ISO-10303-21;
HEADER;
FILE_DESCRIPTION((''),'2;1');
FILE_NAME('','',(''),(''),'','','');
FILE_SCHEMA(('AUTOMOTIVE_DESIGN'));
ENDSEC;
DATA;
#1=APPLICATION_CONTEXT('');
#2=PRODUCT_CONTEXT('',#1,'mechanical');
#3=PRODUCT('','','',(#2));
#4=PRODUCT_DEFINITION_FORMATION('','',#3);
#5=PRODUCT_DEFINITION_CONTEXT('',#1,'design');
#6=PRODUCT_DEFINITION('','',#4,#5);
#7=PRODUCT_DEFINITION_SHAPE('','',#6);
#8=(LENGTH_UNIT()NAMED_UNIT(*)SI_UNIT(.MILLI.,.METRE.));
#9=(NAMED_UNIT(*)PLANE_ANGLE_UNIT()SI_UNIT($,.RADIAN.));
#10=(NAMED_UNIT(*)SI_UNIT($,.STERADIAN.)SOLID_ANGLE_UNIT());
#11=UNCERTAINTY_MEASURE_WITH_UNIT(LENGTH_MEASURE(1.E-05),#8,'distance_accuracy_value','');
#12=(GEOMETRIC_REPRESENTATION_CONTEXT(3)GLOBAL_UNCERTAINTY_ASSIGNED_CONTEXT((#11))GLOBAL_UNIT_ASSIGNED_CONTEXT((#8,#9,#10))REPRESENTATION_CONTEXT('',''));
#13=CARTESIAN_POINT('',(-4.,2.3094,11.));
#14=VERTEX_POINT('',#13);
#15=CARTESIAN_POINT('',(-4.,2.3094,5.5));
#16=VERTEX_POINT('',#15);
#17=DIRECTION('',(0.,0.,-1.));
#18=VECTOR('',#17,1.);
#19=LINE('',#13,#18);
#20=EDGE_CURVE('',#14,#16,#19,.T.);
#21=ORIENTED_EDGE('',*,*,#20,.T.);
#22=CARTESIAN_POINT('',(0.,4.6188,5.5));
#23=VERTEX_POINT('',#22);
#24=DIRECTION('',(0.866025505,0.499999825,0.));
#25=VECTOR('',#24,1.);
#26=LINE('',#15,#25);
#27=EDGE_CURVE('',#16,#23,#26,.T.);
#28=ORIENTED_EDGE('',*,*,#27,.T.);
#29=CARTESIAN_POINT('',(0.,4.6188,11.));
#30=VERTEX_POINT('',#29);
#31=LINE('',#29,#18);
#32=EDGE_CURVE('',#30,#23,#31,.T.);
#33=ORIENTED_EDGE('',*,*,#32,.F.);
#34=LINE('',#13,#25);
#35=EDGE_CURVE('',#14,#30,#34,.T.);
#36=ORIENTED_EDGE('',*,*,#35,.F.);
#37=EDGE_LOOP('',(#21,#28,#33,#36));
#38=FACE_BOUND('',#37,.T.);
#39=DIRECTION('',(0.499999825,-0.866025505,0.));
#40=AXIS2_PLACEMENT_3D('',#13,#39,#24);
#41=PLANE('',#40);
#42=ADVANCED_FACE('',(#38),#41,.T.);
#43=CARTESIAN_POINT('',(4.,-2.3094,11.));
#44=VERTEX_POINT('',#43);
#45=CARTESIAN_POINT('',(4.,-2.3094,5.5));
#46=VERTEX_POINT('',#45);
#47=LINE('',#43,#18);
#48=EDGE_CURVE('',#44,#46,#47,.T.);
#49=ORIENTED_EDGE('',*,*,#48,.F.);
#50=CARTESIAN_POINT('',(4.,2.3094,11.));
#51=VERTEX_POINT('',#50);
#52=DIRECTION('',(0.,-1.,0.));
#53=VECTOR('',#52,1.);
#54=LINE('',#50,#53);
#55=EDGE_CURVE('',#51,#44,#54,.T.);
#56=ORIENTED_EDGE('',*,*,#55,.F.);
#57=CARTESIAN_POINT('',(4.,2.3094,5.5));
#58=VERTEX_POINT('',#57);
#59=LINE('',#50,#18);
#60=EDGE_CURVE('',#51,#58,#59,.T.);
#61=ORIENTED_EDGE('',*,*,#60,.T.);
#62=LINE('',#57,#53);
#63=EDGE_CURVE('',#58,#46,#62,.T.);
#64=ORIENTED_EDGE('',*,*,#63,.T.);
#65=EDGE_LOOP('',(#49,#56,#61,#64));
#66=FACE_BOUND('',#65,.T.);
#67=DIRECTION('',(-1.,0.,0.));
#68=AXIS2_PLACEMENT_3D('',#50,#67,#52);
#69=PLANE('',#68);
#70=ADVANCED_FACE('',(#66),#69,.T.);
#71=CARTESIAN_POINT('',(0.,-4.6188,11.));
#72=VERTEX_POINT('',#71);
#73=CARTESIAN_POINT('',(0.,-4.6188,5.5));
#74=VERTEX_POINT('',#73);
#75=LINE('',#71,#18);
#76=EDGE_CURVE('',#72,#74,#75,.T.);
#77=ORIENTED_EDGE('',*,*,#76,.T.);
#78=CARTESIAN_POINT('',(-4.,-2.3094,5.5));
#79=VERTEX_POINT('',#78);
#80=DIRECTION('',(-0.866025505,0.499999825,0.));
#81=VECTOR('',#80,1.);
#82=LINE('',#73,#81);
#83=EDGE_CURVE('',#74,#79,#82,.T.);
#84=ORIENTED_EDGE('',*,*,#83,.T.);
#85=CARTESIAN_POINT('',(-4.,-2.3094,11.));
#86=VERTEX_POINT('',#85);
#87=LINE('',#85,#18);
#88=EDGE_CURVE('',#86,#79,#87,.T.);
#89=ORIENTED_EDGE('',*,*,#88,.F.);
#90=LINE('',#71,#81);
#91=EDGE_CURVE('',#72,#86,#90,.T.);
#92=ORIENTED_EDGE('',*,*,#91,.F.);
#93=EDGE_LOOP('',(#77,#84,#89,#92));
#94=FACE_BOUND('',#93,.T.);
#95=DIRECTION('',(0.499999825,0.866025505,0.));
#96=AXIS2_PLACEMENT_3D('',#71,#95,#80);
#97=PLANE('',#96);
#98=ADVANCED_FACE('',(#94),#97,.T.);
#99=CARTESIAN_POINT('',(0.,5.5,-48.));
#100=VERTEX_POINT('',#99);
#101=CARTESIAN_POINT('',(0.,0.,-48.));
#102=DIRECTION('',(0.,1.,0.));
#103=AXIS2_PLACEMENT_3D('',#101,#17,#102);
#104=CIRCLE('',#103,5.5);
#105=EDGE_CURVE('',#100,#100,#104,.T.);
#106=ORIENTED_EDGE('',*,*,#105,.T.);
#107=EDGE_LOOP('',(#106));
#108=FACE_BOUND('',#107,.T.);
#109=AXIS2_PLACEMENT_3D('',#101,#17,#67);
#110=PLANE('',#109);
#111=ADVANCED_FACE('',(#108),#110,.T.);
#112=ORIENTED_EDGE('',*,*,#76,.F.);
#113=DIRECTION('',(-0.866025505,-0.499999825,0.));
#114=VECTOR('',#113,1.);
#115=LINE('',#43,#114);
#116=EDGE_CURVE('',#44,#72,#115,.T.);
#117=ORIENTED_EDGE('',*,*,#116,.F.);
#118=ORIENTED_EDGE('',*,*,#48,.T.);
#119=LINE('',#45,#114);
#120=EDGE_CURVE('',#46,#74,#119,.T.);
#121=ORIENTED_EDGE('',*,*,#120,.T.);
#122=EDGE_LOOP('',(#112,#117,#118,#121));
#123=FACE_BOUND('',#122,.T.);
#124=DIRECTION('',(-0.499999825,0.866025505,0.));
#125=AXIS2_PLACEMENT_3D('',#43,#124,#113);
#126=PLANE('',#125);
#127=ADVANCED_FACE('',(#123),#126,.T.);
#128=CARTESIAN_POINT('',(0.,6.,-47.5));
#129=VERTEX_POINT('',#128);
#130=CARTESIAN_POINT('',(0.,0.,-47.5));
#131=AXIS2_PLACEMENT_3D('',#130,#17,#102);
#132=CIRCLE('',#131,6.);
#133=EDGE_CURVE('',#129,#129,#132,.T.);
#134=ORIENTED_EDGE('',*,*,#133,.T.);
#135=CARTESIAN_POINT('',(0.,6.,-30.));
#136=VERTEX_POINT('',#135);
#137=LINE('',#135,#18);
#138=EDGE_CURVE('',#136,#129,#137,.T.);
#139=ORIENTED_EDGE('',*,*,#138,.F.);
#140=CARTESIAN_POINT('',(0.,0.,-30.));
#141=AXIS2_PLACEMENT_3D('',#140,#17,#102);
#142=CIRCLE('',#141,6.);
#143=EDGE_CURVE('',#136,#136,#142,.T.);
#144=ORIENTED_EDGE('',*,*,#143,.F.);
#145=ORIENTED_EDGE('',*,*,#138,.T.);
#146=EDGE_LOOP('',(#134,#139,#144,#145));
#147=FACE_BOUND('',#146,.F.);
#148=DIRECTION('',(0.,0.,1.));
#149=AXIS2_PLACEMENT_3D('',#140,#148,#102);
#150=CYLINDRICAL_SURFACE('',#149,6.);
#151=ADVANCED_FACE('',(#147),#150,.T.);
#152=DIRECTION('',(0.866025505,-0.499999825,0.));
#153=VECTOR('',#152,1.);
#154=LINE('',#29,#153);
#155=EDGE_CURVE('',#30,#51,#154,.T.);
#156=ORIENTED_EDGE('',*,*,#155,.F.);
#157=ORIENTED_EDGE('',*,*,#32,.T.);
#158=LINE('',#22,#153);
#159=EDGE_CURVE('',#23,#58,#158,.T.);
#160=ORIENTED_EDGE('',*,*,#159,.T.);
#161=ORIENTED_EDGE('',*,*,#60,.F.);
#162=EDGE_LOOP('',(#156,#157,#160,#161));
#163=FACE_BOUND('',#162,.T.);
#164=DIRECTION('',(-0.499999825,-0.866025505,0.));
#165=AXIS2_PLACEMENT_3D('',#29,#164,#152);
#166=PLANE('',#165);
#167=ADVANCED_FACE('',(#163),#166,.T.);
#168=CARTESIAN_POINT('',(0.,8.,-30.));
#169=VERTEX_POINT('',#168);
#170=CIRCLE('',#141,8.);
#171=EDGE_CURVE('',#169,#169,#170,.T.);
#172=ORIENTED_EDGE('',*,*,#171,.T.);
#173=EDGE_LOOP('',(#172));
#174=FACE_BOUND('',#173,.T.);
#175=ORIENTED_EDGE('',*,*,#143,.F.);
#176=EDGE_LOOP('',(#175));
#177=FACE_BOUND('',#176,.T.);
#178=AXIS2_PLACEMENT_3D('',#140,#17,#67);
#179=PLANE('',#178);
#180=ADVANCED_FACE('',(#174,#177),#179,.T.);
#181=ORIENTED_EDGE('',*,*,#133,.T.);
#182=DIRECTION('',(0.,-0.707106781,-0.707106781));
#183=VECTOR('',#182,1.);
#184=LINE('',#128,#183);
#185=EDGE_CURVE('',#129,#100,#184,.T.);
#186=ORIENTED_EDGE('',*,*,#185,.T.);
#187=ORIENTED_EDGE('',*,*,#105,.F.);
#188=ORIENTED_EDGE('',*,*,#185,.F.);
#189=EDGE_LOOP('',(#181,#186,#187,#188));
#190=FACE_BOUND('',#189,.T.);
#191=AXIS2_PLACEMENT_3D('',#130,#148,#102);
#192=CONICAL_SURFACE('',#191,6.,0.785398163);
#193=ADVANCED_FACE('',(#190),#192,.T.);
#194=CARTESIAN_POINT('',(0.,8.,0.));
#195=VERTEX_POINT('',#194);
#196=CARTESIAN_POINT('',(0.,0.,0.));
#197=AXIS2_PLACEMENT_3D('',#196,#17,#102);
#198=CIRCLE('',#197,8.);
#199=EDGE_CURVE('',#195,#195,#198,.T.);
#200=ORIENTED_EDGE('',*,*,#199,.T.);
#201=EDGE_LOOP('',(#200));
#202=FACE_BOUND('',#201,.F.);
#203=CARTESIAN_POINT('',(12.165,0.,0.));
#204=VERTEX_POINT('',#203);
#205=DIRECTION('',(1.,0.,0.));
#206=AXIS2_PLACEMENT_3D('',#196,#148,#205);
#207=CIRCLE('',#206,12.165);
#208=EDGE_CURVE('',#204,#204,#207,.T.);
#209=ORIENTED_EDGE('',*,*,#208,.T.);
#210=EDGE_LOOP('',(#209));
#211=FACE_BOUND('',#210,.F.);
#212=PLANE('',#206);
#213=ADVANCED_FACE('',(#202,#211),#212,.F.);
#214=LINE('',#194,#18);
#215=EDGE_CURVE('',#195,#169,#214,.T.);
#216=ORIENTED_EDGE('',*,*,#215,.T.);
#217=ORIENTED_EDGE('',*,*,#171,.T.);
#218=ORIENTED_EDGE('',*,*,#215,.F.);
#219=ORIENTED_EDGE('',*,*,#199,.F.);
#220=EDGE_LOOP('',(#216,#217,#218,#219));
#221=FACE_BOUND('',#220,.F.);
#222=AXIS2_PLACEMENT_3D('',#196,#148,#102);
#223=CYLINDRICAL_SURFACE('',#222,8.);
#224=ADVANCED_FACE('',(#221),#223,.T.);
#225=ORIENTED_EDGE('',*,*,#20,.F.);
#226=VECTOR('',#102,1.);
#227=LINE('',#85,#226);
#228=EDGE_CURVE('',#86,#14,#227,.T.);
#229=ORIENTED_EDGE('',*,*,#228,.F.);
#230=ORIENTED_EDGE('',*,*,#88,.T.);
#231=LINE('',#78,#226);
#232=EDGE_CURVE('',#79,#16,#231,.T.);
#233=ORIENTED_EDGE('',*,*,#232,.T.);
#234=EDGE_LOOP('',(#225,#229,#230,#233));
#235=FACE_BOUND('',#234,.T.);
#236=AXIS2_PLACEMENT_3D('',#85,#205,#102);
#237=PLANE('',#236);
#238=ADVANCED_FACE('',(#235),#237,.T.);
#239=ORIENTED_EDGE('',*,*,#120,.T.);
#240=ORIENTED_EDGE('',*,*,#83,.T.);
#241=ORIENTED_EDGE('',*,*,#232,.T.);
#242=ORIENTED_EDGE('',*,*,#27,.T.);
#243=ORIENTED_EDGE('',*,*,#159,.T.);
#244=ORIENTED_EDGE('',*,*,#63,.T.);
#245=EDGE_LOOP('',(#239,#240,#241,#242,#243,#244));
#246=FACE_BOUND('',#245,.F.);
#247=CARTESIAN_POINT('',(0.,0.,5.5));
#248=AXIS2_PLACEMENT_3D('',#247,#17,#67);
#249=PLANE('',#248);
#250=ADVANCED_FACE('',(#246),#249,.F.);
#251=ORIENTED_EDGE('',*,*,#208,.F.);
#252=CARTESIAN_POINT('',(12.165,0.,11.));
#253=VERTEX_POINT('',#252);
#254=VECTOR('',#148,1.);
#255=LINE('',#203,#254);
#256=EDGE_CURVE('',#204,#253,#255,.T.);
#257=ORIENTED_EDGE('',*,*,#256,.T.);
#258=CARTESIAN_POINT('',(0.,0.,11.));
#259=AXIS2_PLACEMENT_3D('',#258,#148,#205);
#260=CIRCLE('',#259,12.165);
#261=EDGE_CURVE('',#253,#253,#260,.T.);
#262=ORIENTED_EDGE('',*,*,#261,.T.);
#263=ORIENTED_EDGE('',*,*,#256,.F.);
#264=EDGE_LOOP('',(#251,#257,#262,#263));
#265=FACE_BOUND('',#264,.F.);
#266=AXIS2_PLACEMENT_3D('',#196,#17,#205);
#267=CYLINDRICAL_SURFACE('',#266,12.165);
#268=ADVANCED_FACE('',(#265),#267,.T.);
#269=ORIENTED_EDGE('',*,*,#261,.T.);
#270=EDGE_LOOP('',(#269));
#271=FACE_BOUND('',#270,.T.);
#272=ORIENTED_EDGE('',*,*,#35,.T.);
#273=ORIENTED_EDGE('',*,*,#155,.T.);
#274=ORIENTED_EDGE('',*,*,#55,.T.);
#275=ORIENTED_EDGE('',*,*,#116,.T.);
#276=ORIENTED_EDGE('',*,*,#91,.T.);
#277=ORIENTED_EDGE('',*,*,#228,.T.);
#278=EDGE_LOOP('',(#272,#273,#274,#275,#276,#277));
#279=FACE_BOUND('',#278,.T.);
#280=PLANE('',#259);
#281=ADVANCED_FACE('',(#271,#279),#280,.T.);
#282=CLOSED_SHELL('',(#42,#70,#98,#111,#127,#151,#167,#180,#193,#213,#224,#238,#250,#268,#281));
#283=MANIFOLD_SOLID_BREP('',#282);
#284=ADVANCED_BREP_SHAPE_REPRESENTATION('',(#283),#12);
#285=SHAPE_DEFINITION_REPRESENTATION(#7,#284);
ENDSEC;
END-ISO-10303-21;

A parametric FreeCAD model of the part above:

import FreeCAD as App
import Part
import Sketcher
Q = App.Units.Quantity


def edges_at(feature, points):
    """Names of the edges that pass closest to the given points."""
    edges = feature.Shape.Edges
    near = lambda p: min(range(len(edges)), key=lambda i: edges[i].distToShape(Part.Vertex(*p))[0])
    return sorted({f"Edge{near(p) + 1}" for p in points})


def add_polygon(sketch, points):
    """Adds a closed chain of lines whose ends are joined by coincident constraints."""
    first, n = sketch.GeometryCount, len(points)
    for a, b in zip(points, points[1:] + points[:1]):
        sketch.addGeometry(Part.LineSegment(App.Vector(*a, 0), App.Vector(*b, 0)), False)
    for i in range(n):
        sketch.addConstraint(Sketcher.Constraint("Coincident", first + i, 2, first + (i + 1) % n, 1))

doc = App.newDocument("Part")
body = doc.addObject("PartDesign::Body", "Body")

# Sketch on XY plane
sketch1 = doc.addObject("Sketcher::SketchObject", "Sketch")
body.addObject(sketch1)
sketch1.AttachmentSupport = (doc.XY_Plane, [""])
sketch1.MapMode = "FlatFace"
sketch1.addGeometry(Part.Circle(App.Vector(0, 0, 0), App.Vector(0, 0, 1), 12), False)
sketch1.addConstraint([
    Sketcher.Constraint("Coincident", 0, 3, -1, 1),
    Sketcher.Constraint("Diameter", 0, 24.33),
])
pad1 = doc.addObject("PartDesign::Pad", "Pad")
body.addObject(pad1)
pad1.Profile = sketch1
pad1.Length = 11

# Sketch on XY plane
sketch2 = doc.addObject("Sketcher::SketchObject", "Sketch001")
body.addObject(sketch2)
sketch2.AttachmentSupport = (doc.XY_Plane, [""])
sketch2.MapMode = "FlatFace"
sketch2.AttachmentOffset = App.Placement(App.Vector(0, 0, 11), App.Rotation())
add_polygon(sketch2, [(-4, -2.3), (0, -4.6), (4, -2.3), (4, 2.3), (0, 4.6), (-4, 2.3)])  # lines 0-5
sketch2.addConstraint([
    Sketcher.Constraint("Vertical", 2),
    Sketcher.Constraint("Vertical", 5),
    Sketcher.Constraint("Symmetric", 0, 2, 3, 2, -1, 1),
    Sketcher.Constraint("Symmetric", 1, 2, 4, 2, -1, 1),
    Sketcher.Constraint("PointOnObject", 0, 2, -2),
    Sketcher.Constraint("Parallel", 0, 3),
    Sketcher.Constraint("Horizontal", 2, 2, 4, 2),
    Sketcher.Constraint("Angle", 0, Q("-30 deg")),
    Sketcher.Constraint("DistanceX", -1, 1, 1, 2, 4.0),
    Sketcher.Constraint("DistanceY", 2, 1, 2, 2, 4.6188),
])
pocket1 = doc.addObject("PartDesign::Pocket", "Pocket")
body.addObject(pocket1)
pocket1.Profile = sketch2
pocket1.Length = 5.5

# Sketch on XY plane
sketch3 = doc.addObject("Sketcher::SketchObject", "Sketch002")
body.addObject(sketch3)
sketch3.AttachmentSupport = (doc.XY_Plane, [""])
sketch3.MapMode = "FlatFace"
sketch3.addGeometry(Part.Circle(App.Vector(0, 0, 0), App.Vector(0, 0, 1), 8), False)
sketch3.addConstraint([
    Sketcher.Constraint("Coincident", 0, 3, -1, 1),
    Sketcher.Constraint("Diameter", 0, 16.0),
])
pad2 = doc.addObject("PartDesign::Pad", "Pad001")
body.addObject(pad2)
pad2.Profile = sketch3
pad2.Length = 30
pad2.Reversed = True

# Sketch on XY plane
sketch4 = doc.addObject("Sketcher::SketchObject", "Sketch003")
body.addObject(sketch4)
sketch4.AttachmentSupport = (doc.XY_Plane, [""])
sketch4.MapMode = "FlatFace"
sketch4.AttachmentOffset = App.Placement(App.Vector(0, 0, -30), App.Rotation())
sketch4.addGeometry(Part.Circle(App.Vector(0, 0, 0), App.Vector(0, 0, 1), 6), False)
sketch4.addConstraint([
    Sketcher.Constraint("Coincident", 0, 3, -1, 1),
    Sketcher.Constraint("Diameter", 0, 12.0),
])
pad3 = doc.addObject("PartDesign::Pad", "Pad002")
body.addObject(pad3)
pad3.Profile = sketch4
pad3.Length = 18
pad3.Reversed = True
doc.recompute()

chamfer = doc.addObject("PartDesign::Chamfer", "Chamfer")
body.addObject(chamfer)
chamfer.Base = (pad3, edges_at(pad3, [(0, -6, -48)]))
chamfer.Size = 0.5

doc.recompute()
